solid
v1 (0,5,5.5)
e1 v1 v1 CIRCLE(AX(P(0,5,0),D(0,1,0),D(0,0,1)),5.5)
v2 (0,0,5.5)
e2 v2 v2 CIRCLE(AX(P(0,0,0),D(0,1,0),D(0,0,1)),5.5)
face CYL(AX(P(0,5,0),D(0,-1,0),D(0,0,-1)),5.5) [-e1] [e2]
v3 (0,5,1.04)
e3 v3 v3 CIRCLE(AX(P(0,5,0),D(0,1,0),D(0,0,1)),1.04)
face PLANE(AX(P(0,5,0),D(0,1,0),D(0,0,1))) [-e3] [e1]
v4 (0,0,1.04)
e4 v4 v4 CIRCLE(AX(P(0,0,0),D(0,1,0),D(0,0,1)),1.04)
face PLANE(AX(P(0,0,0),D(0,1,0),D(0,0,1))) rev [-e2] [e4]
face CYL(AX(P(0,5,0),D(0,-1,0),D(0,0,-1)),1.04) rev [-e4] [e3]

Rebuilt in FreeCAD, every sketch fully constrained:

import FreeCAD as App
import Part
import Sketcher

doc = App.newDocument("Part")
body = doc.addObject("PartDesign::Body", "Body")

# Sketch on XZ plane
sketch1 = body.newObject("Sketcher::SketchObject", "Sketch")
sketch1.AttachmentSupport = (doc.getObject("XZ_Plane"), [""])
sketch1.MapMode = "FlatFace"
sketch1.addGeometry(Part.Circle(App.Vector(0, 0, 0), App.Vector(0, 0, 1), 5.5), False)
sketch1.addGeometry(Part.Circle(App.Vector(0, 0, 0), App.Vector(0, 0, 1), 1), False)
sketch1.addConstraint(Sketcher.Constraint("Coincident", 0, 3, -1, 1))
sketch1.addConstraint(Sketcher.Constraint("Coincident", 1, 3, -1, 1))
sketch1.addConstraint(Sketcher.Constraint("Diameter", 0, 11.0))
sketch1.addConstraint(Sketcher.Constraint("Diameter", 1, 2.08))
pad1 = body.newObject("PartDesign::Pad", "Pad")
pad1.Profile = sketch1
pad1.Length = 5
pad1.Reversed = True

doc.recompute()
